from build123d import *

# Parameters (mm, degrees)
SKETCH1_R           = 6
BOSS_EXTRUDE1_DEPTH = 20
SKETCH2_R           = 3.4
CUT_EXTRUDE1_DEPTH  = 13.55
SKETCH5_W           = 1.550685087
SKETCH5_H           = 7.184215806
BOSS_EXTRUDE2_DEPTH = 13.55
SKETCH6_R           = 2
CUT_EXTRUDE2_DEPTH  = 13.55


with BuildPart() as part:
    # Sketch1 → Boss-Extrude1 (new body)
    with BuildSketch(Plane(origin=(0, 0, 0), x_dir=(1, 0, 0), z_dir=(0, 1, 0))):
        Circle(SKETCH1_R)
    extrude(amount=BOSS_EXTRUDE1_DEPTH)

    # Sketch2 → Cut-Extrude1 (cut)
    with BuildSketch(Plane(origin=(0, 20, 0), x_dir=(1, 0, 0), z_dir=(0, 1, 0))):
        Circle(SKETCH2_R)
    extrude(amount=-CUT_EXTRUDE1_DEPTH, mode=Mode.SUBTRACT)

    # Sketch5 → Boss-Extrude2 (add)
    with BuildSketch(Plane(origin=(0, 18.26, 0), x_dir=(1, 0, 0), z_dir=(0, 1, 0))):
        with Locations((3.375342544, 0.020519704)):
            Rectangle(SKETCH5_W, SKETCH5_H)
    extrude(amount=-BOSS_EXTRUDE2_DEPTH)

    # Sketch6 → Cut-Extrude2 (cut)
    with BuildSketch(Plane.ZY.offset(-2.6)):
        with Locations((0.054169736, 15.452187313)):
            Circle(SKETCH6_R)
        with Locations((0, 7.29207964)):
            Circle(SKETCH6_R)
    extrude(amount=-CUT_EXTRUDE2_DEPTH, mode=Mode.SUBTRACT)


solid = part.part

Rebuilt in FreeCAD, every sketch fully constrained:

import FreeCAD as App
import Part
import Sketcher

doc = App.newDocument("Part")
body = doc.addObject("PartDesign::Body", "Body")

# Sketch on XZ plane
sketch1 = body.newObject("Sketcher::SketchObject", "Sketch")
sketch1.AttachmentSupport = (doc.getObject("XZ_Plane"), [""])
sketch1.MapMode = "FlatFace"
sketch1.addGeometry(Part.Circle(App.Vector(0, 0, 0), App.Vector(0, 0, 1), 6), False)
sketch1.addConstraint([
    Sketcher.Constraint("Coincident", 0, 3, -1, 1),
    Sketcher.Constraint("Diameter", 0, 12.0),
])
pad1 = body.newObject("PartDesign::Pad", "Pad")
pad1.Profile = sketch1
pad1.Length = 20
pad1.Reversed = True

# Sketch on XZ plane
sketch2 = body.newObject("Sketcher::SketchObject", "Sketch001")
sketch2.AttachmentSupport = (doc.getObject("XZ_Plane"), [""])
sketch2.MapMode = "FlatFace"
sketch2.AttachmentOffset = App.Placement(App.Vector(0, 0, -20), App.Rotation())
sketch2.addGeometry(Part.Circle(App.Vector(0, 0, 0), App.Vector(0, 0, 1), 3.4), False)
sketch2.addConstraint([
    Sketcher.Constraint("Coincident", 0, 3, -1, 1),
    Sketcher.Constraint("Diameter", 0, 6.8),
])
pocket1 = body.newObject("PartDesign::Pocket", "Pocket")
pocket1.Profile = sketch2
pocket1.Length = 13.55
pocket1.Reversed = True

# Sketch on XZ plane
sketch3 = body.newObject("Sketcher::SketchObject", "Sketch002")
sketch3.AttachmentSupport = (doc.getObject("XZ_Plane"), [""])
sketch3.MapMode = "FlatFace"
sketch3.AttachmentOffset = App.Placement(App.Vector(0, 0, -18.26), App.Rotation())
sketch3.addGeometry([
    Part.LineSegment(App.Vector(2.6, -3.6, 0), App.Vector(2.6, 3.6, 0)),
    Part.LineSegment(App.Vector(2.6, 3.6, 0), App.Vector(4.2, 3.6, 0)),
    Part.LineSegment(App.Vector(4.2, 3.6, 0), App.Vector(4.2, -3.6, 0)),
    Part.LineSegment(App.Vector(4.2, -3.6, 0), App.Vector(2.6, -3.6, 0)),
], False)
sketch3.addConstraint([
    Sketcher.Constraint("Coincident", 0, 2, 1, 1),
    Sketcher.Constraint("Coincident", 1, 2, 2, 1),
    Sketcher.Constraint("Coincident", 2, 2, 3, 1),
    Sketcher.Constraint("Coincident", 3, 2, 0, 1),
    Sketcher.Constraint("Vertical", 0),
    Sketcher.Constraint("Horizontal", 1),
    Sketcher.Constraint("Vertical", 2),
    Sketcher.Constraint("Horizontal", 3),
    Sketcher.Constraint("DistanceX", -1, 1, 0, 2, 2.6),
    Sketcher.Constraint("DistanceX", 1, 1, 1, 2, 1.550685),
    Sketcher.Constraint("DistanceY", 0, 1, 0, 2, 7.184216),
    Sketcher.Constraint("DistanceY", -1, 1, 0, 2, 3.571588),
])
pad2 = body.newObject("PartDesign::Pad", "Pad001")
pad2.Profile = sketch3
pad2.Length = 13.55

# Sketch on YZ plane
sketch4 = body.newObject("Sketcher::SketchObject", "Sketch003")
sketch4.AttachmentSupport = (doc.getObject("YZ_Plane"), [""])
sketch4.MapMode = "FlatFace"
sketch4.AttachmentOffset = App.Placement(App.Vector(0, 0, 2.6), App.Rotation())
sketch4.addGeometry([
    Part.Circle(App.Vector(15.5, 0.1, 0), App.Vector(0, 0, 1), 2),
    Part.Circle(App.Vector(7.3, 0, 0), App.Vector(0, 0, 1), 2),
], False)
sketch4.addConstraint([
    Sketcher.Constraint("Equal", 0, 1),
    Sketcher.Constraint("PointOnObject", 1, 3, -1),
    Sketcher.Constraint("Diameter", 0, 4.0),
    Sketcher.Constraint("DistanceY", -1, 1, 0, 3, 0.05417),
    Sketcher.Constraint("DistanceX", -1, 1, 1, 3, 7.29208),
    Sketcher.Constraint("DistanceX", -1, 1, 0, 3, 15.452187),
])
pocket2 = body.newObject("PartDesign::Pocket", "Pocket001")
pocket2.Profile = sketch4
pocket2.Length = 13.55
pocket2.Reversed = True

doc.recompute()
